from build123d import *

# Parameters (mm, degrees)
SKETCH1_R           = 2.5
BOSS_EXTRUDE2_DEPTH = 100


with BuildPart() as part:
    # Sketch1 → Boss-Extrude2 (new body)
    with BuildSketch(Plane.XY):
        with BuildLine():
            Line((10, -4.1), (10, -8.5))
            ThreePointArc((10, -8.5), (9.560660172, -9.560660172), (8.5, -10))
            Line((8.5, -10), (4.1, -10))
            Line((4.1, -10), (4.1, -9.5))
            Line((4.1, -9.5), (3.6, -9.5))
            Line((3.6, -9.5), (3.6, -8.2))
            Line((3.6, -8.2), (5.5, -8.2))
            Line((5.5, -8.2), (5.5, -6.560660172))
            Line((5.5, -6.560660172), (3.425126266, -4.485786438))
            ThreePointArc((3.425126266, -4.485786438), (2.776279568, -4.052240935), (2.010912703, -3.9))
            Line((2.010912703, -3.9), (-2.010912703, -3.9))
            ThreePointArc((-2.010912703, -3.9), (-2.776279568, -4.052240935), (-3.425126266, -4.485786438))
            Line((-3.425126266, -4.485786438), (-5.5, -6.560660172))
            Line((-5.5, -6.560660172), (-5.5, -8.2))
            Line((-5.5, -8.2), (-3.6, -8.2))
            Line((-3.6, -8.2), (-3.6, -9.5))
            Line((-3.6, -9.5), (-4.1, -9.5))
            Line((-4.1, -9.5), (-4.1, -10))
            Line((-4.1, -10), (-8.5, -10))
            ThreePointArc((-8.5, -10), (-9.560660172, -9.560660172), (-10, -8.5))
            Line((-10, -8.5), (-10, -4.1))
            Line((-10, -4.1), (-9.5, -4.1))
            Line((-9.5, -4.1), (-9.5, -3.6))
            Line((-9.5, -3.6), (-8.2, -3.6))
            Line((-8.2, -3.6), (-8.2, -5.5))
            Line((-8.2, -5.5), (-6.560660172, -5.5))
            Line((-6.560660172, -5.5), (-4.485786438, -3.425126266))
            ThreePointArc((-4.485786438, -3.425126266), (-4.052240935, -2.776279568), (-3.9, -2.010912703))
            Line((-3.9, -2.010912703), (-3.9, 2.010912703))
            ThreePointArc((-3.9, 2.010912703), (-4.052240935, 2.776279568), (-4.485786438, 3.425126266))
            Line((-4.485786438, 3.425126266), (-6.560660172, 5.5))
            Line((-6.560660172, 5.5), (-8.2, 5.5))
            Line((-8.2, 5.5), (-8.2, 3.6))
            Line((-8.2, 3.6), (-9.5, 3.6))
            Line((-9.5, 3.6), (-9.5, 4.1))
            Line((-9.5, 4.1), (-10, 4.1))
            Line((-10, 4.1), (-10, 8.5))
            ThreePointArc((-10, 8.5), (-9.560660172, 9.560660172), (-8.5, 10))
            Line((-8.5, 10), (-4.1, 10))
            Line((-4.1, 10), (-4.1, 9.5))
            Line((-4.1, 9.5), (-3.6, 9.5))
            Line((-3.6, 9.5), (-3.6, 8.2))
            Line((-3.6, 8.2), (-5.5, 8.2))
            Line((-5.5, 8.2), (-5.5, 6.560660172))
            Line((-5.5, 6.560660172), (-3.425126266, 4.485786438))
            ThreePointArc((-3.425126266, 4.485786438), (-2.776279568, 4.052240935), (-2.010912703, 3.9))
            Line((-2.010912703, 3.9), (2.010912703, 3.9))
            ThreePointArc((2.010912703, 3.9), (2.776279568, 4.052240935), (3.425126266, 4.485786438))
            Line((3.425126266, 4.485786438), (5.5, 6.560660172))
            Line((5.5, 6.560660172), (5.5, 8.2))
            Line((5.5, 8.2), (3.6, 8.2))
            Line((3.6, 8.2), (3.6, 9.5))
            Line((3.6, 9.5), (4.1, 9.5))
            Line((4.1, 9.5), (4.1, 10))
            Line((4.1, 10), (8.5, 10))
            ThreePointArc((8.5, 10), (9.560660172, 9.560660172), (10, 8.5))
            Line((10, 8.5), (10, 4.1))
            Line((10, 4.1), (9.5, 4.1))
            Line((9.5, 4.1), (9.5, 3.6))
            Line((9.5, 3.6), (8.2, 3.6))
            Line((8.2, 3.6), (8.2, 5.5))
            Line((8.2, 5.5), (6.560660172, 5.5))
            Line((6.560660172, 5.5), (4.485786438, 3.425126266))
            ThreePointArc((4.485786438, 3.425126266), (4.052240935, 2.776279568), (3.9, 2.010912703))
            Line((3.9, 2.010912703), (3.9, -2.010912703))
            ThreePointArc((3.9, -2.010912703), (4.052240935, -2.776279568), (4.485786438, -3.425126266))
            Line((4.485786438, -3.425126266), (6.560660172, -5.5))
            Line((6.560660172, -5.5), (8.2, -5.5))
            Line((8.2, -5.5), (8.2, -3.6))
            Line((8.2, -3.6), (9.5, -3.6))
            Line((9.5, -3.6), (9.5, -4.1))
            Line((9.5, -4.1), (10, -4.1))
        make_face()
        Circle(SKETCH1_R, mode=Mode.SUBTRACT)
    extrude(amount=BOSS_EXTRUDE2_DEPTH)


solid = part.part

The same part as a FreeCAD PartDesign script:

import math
import FreeCAD as App
import Part
import Sketcher

V = App.Vector
Q = App.Units.Quantity

doc = App.newDocument("Part")
body = doc.addObject("PartDesign::Body", "Body")

sketch1 = body.newObject("Sketcher::SketchObject", "Sketch")
sketch1.AttachmentSupport = (doc.getObject("XY_Plane"), [""])
sketch1.MapMode = "FlatFace"
sketch1.addGeometry([
    Part.LineSegment(V(10, -8.5, 0), V(10, -4.1, 0)),
    Part.LineSegment(V(10, -4.1, 0), V(9.5, -4.1, 0)),
    Part.LineSegment(V(9.5, -4.1, 0), V(9.5, -3.6, 0)),
    Part.LineSegment(V(9.5, -3.6, 0), V(8.2, -3.6, 0)),
    Part.LineSegment(V(8.2, -3.6, 0), V(8.2, -5.5, 0)),
    Part.LineSegment(V(8.2, -5.5, 0), V(6.56, -5.5, 0)),
    Part.LineSegment(V(6.56, -5.5, 0), V(4.49, -3.43, 0)),
    Part.ArcOfCircle(Part.Circle(V(5.9, -2.01, 0), V(0, 0, 1), 2), math.radians(180), math.radians(225)),
    Part.LineSegment(V(3.9, -2.01, 0), V(3.9, 2.01, 0)),
    Part.ArcOfCircle(Part.Circle(V(5.9, 2.01, 0), V(0, 0, 1), 2), math.radians(135), math.radians(180)),
    Part.LineSegment(V(4.49, 3.43, 0), V(6.56, 5.5, 0)),
    Part.LineSegment(V(6.56, 5.5, 0), V(8.2, 5.5, 0)),
    Part.LineSegment(V(8.2, 5.5, 0), V(8.2, 3.6, 0)),
    Part.LineSegment(V(8.2, 3.6, 0), V(9.5, 3.6, 0)),
    Part.LineSegment(V(9.5, 3.6, 0), V(9.5, 4.1, 0)),
    Part.LineSegment(V(9.5, 4.1, 0), V(10, 4.1, 0)),
    Part.LineSegment(V(10, 4.1, 0), V(10, 8.5, 0)),
    Part.ArcOfCircle(Part.Circle(V(8.5, 8.5, 0), V(0, 0, 1), 1.5), math.radians(0), math.radians(90)),
    Part.LineSegment(V(8.5, 10, 0), V(4.1, 10, 0)),
    Part.LineSegment(V(4.1, 10, 0), V(4.1, 9.5, 0)),
    Part.LineSegment(V(4.1, 9.5, 0), V(3.6, 9.5, 0)),
    Part.LineSegment(V(3.6, 9.5, 0), V(3.6, 8.2, 0)),
    Part.LineSegment(V(3.6, 8.2, 0), V(5.5, 8.2, 0)),
    Part.LineSegment(V(5.5, 8.2, 0), V(5.5, 6.56, 0)),
    Part.LineSegment(V(5.5, 6.56, 0), V(3.43, 4.49, 0)),
    Part.ArcOfCircle(Part.Circle(V(2.01, 5.9, 0), V(0, 0, 1), 2), math.radians(-90), math.radians(-45)),
    Part.LineSegment(V(2.01, 3.9, 0), V(-2.01, 3.9, 0)),
    Part.ArcOfCircle(Part.Circle(V(-2.01, 5.9, 0), V(0, 0, 1), 2), math.radians(-135), math.radians(-90)),
    Part.LineSegment(V(-3.43, 4.49, 0), V(-5.5, 6.56, 0)),
    Part.LineSegment(V(-5.5, 6.56, 0), V(-5.5, 8.2, 0)),
    Part.LineSegment(V(-5.5, 8.2, 0), V(-3.6, 8.2, 0)),
    Part.LineSegment(V(-3.6, 8.2, 0), V(-3.6, 9.5, 0)),
    Part.LineSegment(V(-3.6, 9.5, 0), V(-4.1, 9.5, 0)),
    Part.LineSegment(V(-4.1, 9.5, 0), V(-4.1, 10, 0)),
    Part.LineSegment(V(-4.1, 10, 0), V(-8.5, 10, 0)),
    Part.ArcOfCircle(Part.Circle(V(-8.5, 8.5, 0), V(0, 0, 1), 1.5), math.radians(90), math.radians(180)),
    Part.LineSegment(V(-10, 8.5, 0), V(-10, 4.1, 0)),
    Part.LineSegment(V(-10, 4.1, 0), V(-9.5, 4.1, 0)),
    Part.LineSegment(V(-9.5, 4.1, 0), V(-9.5, 3.6, 0)),
    Part.LineSegment(V(-9.5, 3.6, 0), V(-8.2, 3.6, 0)),
    Part.LineSegment(V(-8.2, 3.6, 0), V(-8.2, 5.5, 0)),
    Part.LineSegment(V(-8.2, 5.5, 0), V(-6.56, 5.5, 0)),
    Part.LineSegment(V(-6.56, 5.5, 0), V(-4.49, 3.43, 0)),
    Part.ArcOfCircle(Part.Circle(V(-5.9, 2.01, 0), V(0, 0, 1), 2), math.radians(0), math.radians(45)),
    Part.LineSegment(V(-3.9, 2.01, 0), V(-3.9, -2.01, 0)),
    Part.ArcOfCircle(Part.Circle(V(-5.9, -2.01, 0), V(0, 0, 1), 2), math.radians(-45), math.radians(0)),
    Part.LineSegment(V(-4.49, -3.43, 0), V(-6.56, -5.5, 0)),
    Part.LineSegment(V(-6.56, -5.5, 0), V(-8.2, -5.5, 0)),
    Part.LineSegment(V(-8.2, -5.5, 0), V(-8.2, -3.6, 0)),
    Part.LineSegment(V(-8.2, -3.6, 0), V(-9.5, -3.6, 0)),
    Part.LineSegment(V(-9.5, -3.6, 0), V(-9.5, -4.1, 0)),
    Part.LineSegment(V(-9.5, -4.1, 0), V(-10, -4.1, 0)),
    Part.LineSegment(V(-10, -4.1, 0), V(-10, -8.5, 0)),
    Part.ArcOfCircle(Part.Circle(V(-8.5, -8.5, 0), V(0, 0, 1), 1.5), math.radians(180), math.radians(270)),
    Part.LineSegment(V(-8.5, -10, 0), V(-4.1, -10, 0)),
    Part.LineSegment(V(-4.1, -10, 0), V(-4.1, -9.5, 0)),
    Part.LineSegment(V(-4.1, -9.5, 0), V(-3.6, -9.5, 0)),
    Part.LineSegment(V(-3.6, -9.5, 0), V(-3.6, -8.2, 0)),
    Part.LineSegment(V(-3.6, -8.2, 0), V(-5.5, -8.2, 0)),
    Part.LineSegment(V(-5.5, -8.2, 0), V(-5.5, -6.56, 0)),
    Part.LineSegment(V(-5.5, -6.56, 0), V(-3.43, -4.49, 0)),
    Part.ArcOfCircle(Part.Circle(V(-2.01, -5.9, 0), V(0, 0, 1), 2), math.radians(90), math.radians(135)),
    Part.LineSegment(V(-2.01, -3.9, 0), V(2.01, -3.9, 0)),
    Part.ArcOfCircle(Part.Circle(V(2.01, -5.9, 0), V(0, 0, 1), 2), math.radians(45), math.radians(90)),
    Part.LineSegment(V(3.43, -4.49, 0), V(5.5, -6.56, 0)),
    Part.LineSegment(V(5.5, -6.56, 0), V(5.5, -8.2, 0)),
    Part.LineSegment(V(5.5, -8.2, 0), V(3.6, -8.2, 0)),
    Part.LineSegment(V(3.6, -8.2, 0), V(3.6, -9.5, 0)),
    Part.LineSegment(V(3.6, -9.5, 0), V(4.1, -9.5, 0)),
    Part.LineSegment(V(4.1, -9.5, 0), V(4.1, -10, 0)),
    Part.LineSegment(V(4.1, -10, 0), V(8.5, -10, 0)),
    Part.ArcOfCircle(Part.Circle(V(8.5, -8.5, 0), V(0, 0, 1), 1.5), math.radians(-90), math.radians(0)),
    Part.Circle(V(0, 0, 0), V(0, 0, 1), 2.5),
], False)
sketch1.addConstraint([
    Sketcher.Constraint("Coincident", 0, 2, 1, 1),
    Sketcher.Constraint("Coincident", 1, 2, 2, 1),
    Sketcher.Constraint("Coincident", 2, 2, 3, 1),
    Sketcher.Constraint("Coincident", 3, 2, 4, 1),
    Sketcher.Constraint("Coincident", 4, 2, 5, 1),
    Sketcher.Constraint("Coincident", 5, 2, 6, 1),
    Sketcher.Constraint("Tangent", 6, 2, 7, 2),
    Sketcher.Constraint("Tangent", 7, 1, 8, 1),
    Sketcher.Constraint("Tangent", 8, 2, 9, 2),
    Sketcher.Constraint("Tangent", 9, 1, 10, 1),
    Sketcher.Constraint("Coincident", 10, 2, 11, 1),
    Sketcher.Constraint("Coincident", 11, 2, 12, 1),
    Sketcher.Constraint("Coincident", 12, 2, 13, 1),
    Sketcher.Constraint("Coincident", 13, 2, 14, 1),
    Sketcher.Constraint("Coincident", 14, 2, 15, 1),
    Sketcher.Constraint("Coincident", 15, 2, 16, 1),
    Sketcher.Constraint("Tangent", 16, 2, 17, 1),
    Sketcher.Constraint("Tangent", 17, 2, 18, 1),
    Sketcher.Constraint("Coincident", 18, 2, 19, 1),
    Sketcher.Constraint("Coincident", 19, 2, 20, 1),
    Sketcher.Constraint("Coincident", 20, 2, 21, 1),
    Sketcher.Constraint("Coincident", 21, 2, 22, 1),
    Sketcher.Constraint("Coincident", 22, 2, 23, 1),
    Sketcher.Constraint("Coincident", 23, 2, 24, 1),
    Sketcher.Constraint("Tangent", 24, 2, 25, 2),
    Sketcher.Constraint("Tangent", 25, 1, 26, 1),
    Sketcher.Constraint("Tangent", 26, 2, 27, 2),
    Sketcher.Constraint("Tangent", 27, 1, 28, 1),
    Sketcher.Constraint("Coincident", 28, 2, 29, 1),
    Sketcher.Constraint("Coincident", 29, 2, 30, 1),
    Sketcher.Constraint("Coincident", 30, 2, 31, 1),
    Sketcher.Constraint("Coincident", 31, 2, 32, 1),
    Sketcher.Constraint("Coincident", 32, 2, 33, 1),
    Sketcher.Constraint("Coincident", 33, 2, 34, 1),
    Sketcher.Constraint("Tangent", 34, 2, 35, 1),
    Sketcher.Constraint("Tangent", 35, 2, 36, 1),
    Sketcher.Constraint("Coincident", 36, 2, 37, 1),
    Sketcher.Constraint("Coincident", 37, 2, 38, 1),
    Sketcher.Constraint("Coincident", 38, 2, 39, 1),
    Sketcher.Constraint("Coincident", 39, 2, 40, 1),
    Sketcher.Constraint("Coincident", 40, 2, 41, 1),
    Sketcher.Constraint("Coincident", 41, 2, 42, 1),
    Sketcher.Constraint("Tangent", 42, 2, 43, 2),
    Sketcher.Constraint("Tangent", 43, 1, 44, 1),
    Sketcher.Constraint("Tangent", 44, 2, 45, 2),
    Sketcher.Constraint("Tangent", 45, 1, 46, 1),
    Sketcher.Constraint("Coincident", 46, 2, 47, 1),
    Sketcher.Constraint("Coincident", 47, 2, 48, 1),
    Sketcher.Constraint("Coincident", 48, 2, 49, 1),
    Sketcher.Constraint("Coincident", 49, 2, 50, 1),
    Sketcher.Constraint("Coincident", 50, 2, 51, 1),
    Sketcher.Constraint("Coincident", 51, 2, 52, 1),
    Sketcher.Constraint("Tangent", 52, 2, 53, 1),
    Sketcher.Constraint("Tangent", 53, 2, 54, 1),
    Sketcher.Constraint("Coincident", 54, 2, 55, 1),
    Sketcher.Constraint("Coincident", 55, 2, 56, 1),
    Sketcher.Constraint("Coincident", 56, 2, 57, 1),
    Sketcher.Constraint("Coincident", 57, 2, 58, 1),
    Sketcher.Constraint("Coincident", 58, 2, 59, 1),
    Sketcher.Constraint("Coincident", 59, 2, 60, 1),
    Sketcher.Constraint("Tangent", 60, 2, 61, 2),
    Sketcher.Constraint("Tangent", 61, 1, 62, 1),
    Sketcher.Constraint("Tangent", 62, 2, 63, 2),
    Sketcher.Constraint("Tangent", 63, 1, 64, 1),
    Sketcher.Constraint("Coincident", 64, 2, 65, 1),
    Sketcher.Constraint("Coincident", 65, 2, 66, 1),
    Sketcher.Constraint("Coincident", 66, 2, 67, 1),
    Sketcher.Constraint("Coincident", 67, 2, 68, 1),
    Sketcher.Constraint("Coincident", 68, 2, 69, 1),
    Sketcher.Constraint("Coincident", 69, 2, 70, 1),
    Sketcher.Constraint("Tangent", 70, 2, 71, 1),
    Sketcher.Constraint("Tangent", 71, 2, 0, 1),
    Sketcher.Constraint("Vertical", 0),
    Sketcher.Constraint("Horizontal", 1),
    Sketcher.Constraint("Vertical", 2),
    Sketcher.Constraint("Horizontal", 3),
    Sketcher.Constraint("Vertical", 4),
    Sketcher.Constraint("Horizontal", 5),
    Sketcher.Constraint("Vertical", 8),
    Sketcher.Constraint("Horizontal", 11),
    Sketcher.Constraint("Vertical", 12),
    Sketcher.Constraint("Horizontal", 13),
    Sketcher.Constraint("Vertical", 14),
    Sketcher.Constraint("Horizontal", 15),
    Sketcher.Constraint("Vertical", 16),
    Sketcher.Constraint("Horizontal", 18),
    Sketcher.Constraint("Vertical", 19),
    Sketcher.Constraint("Horizontal", 20),
    Sketcher.Constraint("Vertical", 21),
    Sketcher.Constraint("Horizontal", 22),
    Sketcher.Constraint("Vertical", 23),
    Sketcher.Constraint("Horizontal", 26),
    Sketcher.Constraint("Vertical", 29),
    Sketcher.Constraint("Horizontal", 30),
    Sketcher.Constraint("Vertical", 31),
    Sketcher.Constraint("Horizontal", 32),
    Sketcher.Constraint("Vertical", 33),
    Sketcher.Constraint("Horizontal", 34),
    Sketcher.Constraint("Vertical", 36),
    Sketcher.Constraint("Horizontal", 37),
    Sketcher.Constraint("Vertical", 38),
    Sketcher.Constraint("Horizontal", 39),
    Sketcher.Constraint("Vertical", 40),
    Sketcher.Constraint("Horizontal", 41),
    Sketcher.Constraint("Vertical", 44),
    Sketcher.Constraint("Horizontal", 47),
    Sketcher.Constraint("Vertical", 48),
    Sketcher.Constraint("Horizontal", 49),
    Sketcher.Constraint("Vertical", 50),
    Sketcher.Constraint("Horizontal", 51),
    Sketcher.Constraint("Vertical", 52),
    Sketcher.Constraint("Horizontal", 54),
    Sketcher.Constraint("Vertical", 55),
    Sketcher.Constraint("Horizontal", 56),
    Sketcher.Constraint("Vertical", 57),
    Sketcher.Constraint("Horizontal", 58),
    Sketcher.Constraint("Vertical", 59),
    Sketcher.Constraint("Horizontal", 62),
    Sketcher.Constraint("Vertical", 65),
    Sketcher.Constraint("Horizontal", 66),
    Sketcher.Constraint("Vertical", 67),
    Sketcher.Constraint("Horizontal", 68),
    Sketcher.Constraint("Vertical", 69),
    Sketcher.Constraint("Horizontal", 70),
    Sketcher.Constraint("Coincident", 72, 3, -1, 1),
    Sketcher.Constraint("Equal", 7, 9),
    Sketcher.Constraint("Equal", 9, 25),
    Sketcher.Constraint("Equal", 25, 27),
    Sketcher.Constraint("Equal", 17, 35),
    Sketcher.Constraint("Equal", 27, 43),
    Sketcher.Constraint("Equal", 43, 45),
    Sketcher.Constraint("Equal", 35, 53),
    Sketcher.Constraint("Equal", 45, 61),
    Sketcher.Constraint("Equal", 61, 63),
    Sketcher.Constraint("Equal", 53, 71),
    Sketcher.Constraint("Symmetric", 7, 3, 43, 3, -1, 1),
    Sketcher.Constraint("Symmetric", 17, 3, 53, 3, -1, 1),
    Sketcher.Constraint("Symmetric", 25, 3, 61, 3, -1, 1),
    Sketcher.Constraint("Symmetric", 35, 3, 71, 3, -1, 1),
    Sketcher.Constraint("Symmetric", 1, 2, 37, 2, -1, 1),
    Sketcher.Constraint("Symmetric", 3, 2, 39, 2, -1, 1),
    Sketcher.Constraint("Symmetric", 5, 2, 41, 2, -1, 1),
    Sketcher.Constraint("Symmetric", 9, 1, 45, 1, -1, 1),
    Sketcher.Constraint("Symmetric", 11, 2, 47, 2, -1, 1),
    Sketcher.Constraint("Symmetric", 13, 2, 49, 2, -1, 1),
    Sketcher.Constraint("Symmetric", 19, 2, 55, 2, -1, 1),
    Sketcher.Constraint("Symmetric", 21, 2, 57, 2, -1, 1),
    Sketcher.Constraint("Symmetric", 23, 2, 59, 2, -1, 1),
    Sketcher.Constraint("Symmetric", 27, 1, 63, 1, -1, 1),
    Sketcher.Constraint("Symmetric", 29, 2, 65, 2, -1, 1),
    Sketcher.Constraint("Symmetric", 31, 2, 67, 2, -1, 1),
    Sketcher.Constraint("Symmetric", 17, 3, 35, 3, -2),
    Sketcher.Constraint("Symmetric", 24, 2, 27, 1, -2),
    Sketcher.Constraint("Symmetric", 22, 2, 29, 2, -2),
    Sketcher.Constraint("Symmetric", 20, 2, 31, 2, -2),
    Sketcher.Constraint("Symmetric", 14, 2, 37, 2, -2),
    Sketcher.Constraint("Symmetric", 12, 2, 39, 2, -2),
    Sketcher.Constraint("Symmetric", 10, 2, 41, 2, -2),
    Sketcher.Constraint("Perpendicular", 6, 10),
    Sketcher.Constraint("Parallel", 10, 24),
    Sketcher.Constraint("Perpendicular", 24, 28),
    Sketcher.Constraint("Horizontal", 1, 2, 50, 2),
    Sketcher.Constraint("Vertical", 33, 2, 54, 2),
    Sketcher.Constraint("Vertical", 19, 2, 68, 2),
    Sketcher.Constraint("Equal", 15, 20),
    Sketcher.Constraint("Equal", 70, 0),
    Sketcher.Constraint("Equal", 68, 2),
    Sketcher.Constraint("Equal", 66, 4),
    Sketcher.Constraint("Equal", 62, 8),
    Sketcher.Constraint("Equal", 14, 19),
    Sketcher.Constraint("Equal", 49, 21),
    Sketcher.Constraint("Equal", 47, 23),
    Sketcher.Constraint("Equal", 10, 24),
    Sketcher.Constraint("Diameter", 72, Q("5 mm")),
    Sketcher.Constraint("Radius", 7, Q("2 mm")),
    Sketcher.Constraint("Radius", 17, Q("1.5 mm")),
    Sketcher.Constraint("DistanceX", 1, 2, 1, 1, Q("0.5 mm")),
    Sketcher.Constraint("DistanceX", 3, 2, 3, 1, Q("1.3 mm")),
    Sketcher.Constraint("DistanceX", 18, 2, 18, 1, Q("4.4 mm")),
    Sketcher.Constraint("DistanceX", 22, 1, 22, 2, Q("1.9 mm")),
    Sketcher.Constraint("DistanceX", -1, 1, 0, 2, Q("10 mm")),
    Sketcher.Constraint("DistanceX", -1, 1, 7, 3, Q("5.9 mm")),
    Sketcher.Constraint("DistanceX", 5, 2, 5, 1, Q("1.63934 mm")),
])
pad1 = body.newObject("PartDesign::Pad", "Pad")
pad1.Profile = sketch1
pad1.Length = 100

doc.recompute()
